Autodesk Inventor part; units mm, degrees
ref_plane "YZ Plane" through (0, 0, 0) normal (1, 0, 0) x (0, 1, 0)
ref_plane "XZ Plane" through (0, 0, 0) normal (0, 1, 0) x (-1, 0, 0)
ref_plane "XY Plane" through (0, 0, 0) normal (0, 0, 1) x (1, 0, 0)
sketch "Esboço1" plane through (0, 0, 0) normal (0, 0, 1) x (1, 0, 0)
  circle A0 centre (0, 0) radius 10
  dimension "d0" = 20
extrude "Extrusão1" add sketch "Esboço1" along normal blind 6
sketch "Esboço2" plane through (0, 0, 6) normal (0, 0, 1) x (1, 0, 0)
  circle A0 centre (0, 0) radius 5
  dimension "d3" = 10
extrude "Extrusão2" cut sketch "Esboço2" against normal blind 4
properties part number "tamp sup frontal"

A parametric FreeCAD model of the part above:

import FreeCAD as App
import Part
import Sketcher
Q = App.Units.Quantity

doc = App.newDocument("Part")
body = doc.addObject("PartDesign::Body", "Body")

# Sketch on XY plane
sketch1 = body.newObject("Sketcher::SketchObject", "Sketch")
sketch1.AttachmentSupport = (doc.getObject("XY_Plane"), [""])
sketch1.MapMode = "FlatFace"
sketch1.addGeometry(Part.Circle(App.Vector(0, 0, 0), App.Vector(0, 0, 1), 10), False)
sketch1.addConstraint([
    Sketcher.Constraint("Coincident", 0, 3, -1, 1),
    Sketcher.Constraint("Diameter", 0, Q("20 mm")),
])
pad1 = body.newObject("PartDesign::Pad", "Pad")
pad1.Profile = sketch1
pad1.Length = 6

# Sketch on XY plane
sketch2 = body.newObject("Sketcher::SketchObject", "Sketch001")
sketch2.AttachmentSupport = (doc.getObject("XY_Plane"), [""])
sketch2.MapMode = "FlatFace"
sketch2.AttachmentOffset = App.Placement(App.Vector(0, 0, 6), App.Rotation())
sketch2.addGeometry(Part.Circle(App.Vector(0, 0, 0), App.Vector(0, 0, 1), 5), False)
sketch2.addConstraint([
    Sketcher.Constraint("Coincident", 0, 3, -1, 1),
    Sketcher.Constraint("Diameter", 0, Q("10 mm")),
])
pocket1 = body.newObject("PartDesign::Pocket", "Pocket")
pocket1.Profile = sketch2
pocket1.Length = 4

doc.recompute()
